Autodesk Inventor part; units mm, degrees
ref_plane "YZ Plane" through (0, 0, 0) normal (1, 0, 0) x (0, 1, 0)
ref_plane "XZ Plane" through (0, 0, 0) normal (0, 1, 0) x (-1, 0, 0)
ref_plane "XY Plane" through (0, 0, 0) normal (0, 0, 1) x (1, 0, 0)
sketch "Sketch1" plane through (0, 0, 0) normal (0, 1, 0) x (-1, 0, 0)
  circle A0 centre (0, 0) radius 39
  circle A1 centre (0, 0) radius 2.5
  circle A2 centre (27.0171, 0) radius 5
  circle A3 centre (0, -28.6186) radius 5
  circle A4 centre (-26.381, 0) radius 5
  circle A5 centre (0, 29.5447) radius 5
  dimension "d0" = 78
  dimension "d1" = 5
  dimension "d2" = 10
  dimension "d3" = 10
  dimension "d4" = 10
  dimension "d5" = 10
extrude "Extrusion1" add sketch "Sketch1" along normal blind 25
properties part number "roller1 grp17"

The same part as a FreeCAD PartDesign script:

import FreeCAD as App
import Part
import Sketcher
Q = App.Units.Quantity

doc = App.newDocument("Part")
params = doc.addObject("Spreadsheet::Sheet", "Params")
for row, (alias, value) in enumerate([
    ("sketch1_diameter", "78 mm"),
    ("sketch1_diameter2", "10 mm"),
    ("sketch1_diameter3", "5 mm"),
    ("pad1_length", "25 mm"),
], start=1):
    params.set(f"A{row}", alias)
    params.set(f"B{row}", "=" + value)
    params.setAlias(f"B{row}", alias)

body = doc.addObject("PartDesign::Body", "Body")

sketch1 = doc.addObject("Sketcher::SketchObject", "Sketch")
body.addObject(sketch1)
sketch1.AttachmentSupport = (doc.XZ_Plane, [""])
sketch1.MapMode = "FlatFace"
sketch1.addGeometry(Part.Circle(App.Vector(0, 0, 0), App.Vector(0, 0, 1), 39), False)
sketch1.addGeometry(Part.Circle(App.Vector(0, -28.6, 0), App.Vector(0, 0, 1), 5), False)
sketch1.addGeometry(Part.Circle(App.Vector(26.4, 0, 0), App.Vector(0, 0, 1), 5), False)
sketch1.addGeometry(Part.Circle(App.Vector(0, 0, 0), App.Vector(0, 0, 1), 2.5), False)
sketch1.addGeometry(Part.Circle(App.Vector(-27, 0, 0), App.Vector(0, 0, 1), 5), False)
sketch1.addGeometry(Part.Circle(App.Vector(0, 29.5, 0), App.Vector(0, 0, 1), 5), False)
sketch1.addConstraint(Sketcher.Constraint("Coincident", 0, 3, -1, 1))
sketch1.addConstraint(Sketcher.Constraint("Coincident", 3, 3, -1, 1))
sketch1.addConstraint(Sketcher.Constraint("Equal", 1, 2))
sketch1.addConstraint(Sketcher.Constraint("Equal", 2, 4))
sketch1.addConstraint(Sketcher.Constraint("Equal", 4, 5))
sketch1.addConstraint(Sketcher.Constraint("PointOnObject", 1, 3, -2))
sketch1.addConstraint(Sketcher.Constraint("PointOnObject", 2, 3, -1))
sketch1.addConstraint(Sketcher.Constraint("PointOnObject", 4, 3, -1))
sketch1.addConstraint(Sketcher.Constraint("PointOnObject", 5, 3, -2))
sketch1.addConstraint(Sketcher.Constraint("Diameter", 0, Q("78 mm")))
sketch1.addConstraint(Sketcher.Constraint("Diameter", 1, Q("10 mm")))
sketch1.addConstraint(Sketcher.Constraint("Diameter", 3, Q("5 mm")))
sketch1.addConstraint(Sketcher.Constraint("DistanceX", -1, 1, 2, 3, Q("26.381 mm")))
sketch1.addConstraint(Sketcher.Constraint("DistanceX", 4, 3, -1, 1, Q("27.017 mm")))
sketch1.addConstraint(Sketcher.Constraint("DistanceY", 1, 3, -1, 1, Q("28.6186 mm")))
sketch1.addConstraint(Sketcher.Constraint("DistanceY", -1, 1, 5, 3, Q("29.5447 mm")))
sketch1.setExpression("Constraints[9]", "Params.sketch1_diameter")
sketch1.setExpression("Constraints[10]", "Params.sketch1_diameter2")
sketch1.setExpression("Constraints[11]", "Params.sketch1_diameter3")
pad1 = doc.addObject("PartDesign::Pad", "Pad")
body.addObject(pad1)
pad1.Profile = sketch1
pad1.setExpression("Length", "Params.pad1_length")
pad1.Reversed = True

doc.recompute()
